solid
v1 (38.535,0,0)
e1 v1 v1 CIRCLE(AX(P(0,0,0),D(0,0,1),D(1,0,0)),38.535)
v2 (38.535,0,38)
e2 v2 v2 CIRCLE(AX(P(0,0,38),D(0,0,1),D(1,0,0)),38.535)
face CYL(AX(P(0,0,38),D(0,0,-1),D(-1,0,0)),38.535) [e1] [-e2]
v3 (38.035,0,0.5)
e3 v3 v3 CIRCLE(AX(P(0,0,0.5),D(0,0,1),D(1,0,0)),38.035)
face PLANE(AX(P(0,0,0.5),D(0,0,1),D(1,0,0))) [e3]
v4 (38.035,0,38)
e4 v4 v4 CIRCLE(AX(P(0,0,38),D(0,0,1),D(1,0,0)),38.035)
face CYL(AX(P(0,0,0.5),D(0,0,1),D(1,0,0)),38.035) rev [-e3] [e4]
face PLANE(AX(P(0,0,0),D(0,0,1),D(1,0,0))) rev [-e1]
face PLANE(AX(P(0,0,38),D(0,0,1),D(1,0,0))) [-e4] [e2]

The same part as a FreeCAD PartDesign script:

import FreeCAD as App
import Part
import Sketcher

V = App.Vector

doc = App.newDocument("Part")
body = doc.addObject("PartDesign::Body", "Body")

# Sketch on XY plane
sketch1 = doc.addObject("Sketcher::SketchObject", "Sketch")
body.addObject(sketch1)
sketch1.AttachmentSupport = (doc.XY_Plane, [""])
sketch1.MapMode = "FlatFace"
sketch1.addGeometry(Part.Circle(V(0, 0, 0), V(0, 0, 1), 39), False)
sketch1.addConstraint(Sketcher.Constraint("Coincident", 0, 3, -1, 1))
sketch1.addConstraint(Sketcher.Constraint("Diameter", 0, 77.07))
pad1 = doc.addObject("PartDesign::Pad", "Pad")
body.addObject(pad1)
pad1.Profile = sketch1
pad1.Length = 38

# Sketch on XY plane
sketch2 = doc.addObject("Sketcher::SketchObject", "Sketch001")
body.addObject(sketch2)
sketch2.AttachmentSupport = (doc.XY_Plane, [""])
sketch2.MapMode = "FlatFace"
sketch2.AttachmentOffset = App.Placement(V(0, 0, 38), App.Rotation())
sketch2.addGeometry(Part.Circle(V(0, 0, 0), V(0, 0, 1), 38), False)
sketch2.addConstraint(Sketcher.Constraint("Coincident", 0, 3, -1, 1))
sketch2.addConstraint(Sketcher.Constraint("Diameter", 0, 76.07))
pocket1 = doc.addObject("PartDesign::Pocket", "Pocket")
body.addObject(pocket1)
pocket1.Profile = sketch2
pocket1.Length = 37.5

doc.recompute()
